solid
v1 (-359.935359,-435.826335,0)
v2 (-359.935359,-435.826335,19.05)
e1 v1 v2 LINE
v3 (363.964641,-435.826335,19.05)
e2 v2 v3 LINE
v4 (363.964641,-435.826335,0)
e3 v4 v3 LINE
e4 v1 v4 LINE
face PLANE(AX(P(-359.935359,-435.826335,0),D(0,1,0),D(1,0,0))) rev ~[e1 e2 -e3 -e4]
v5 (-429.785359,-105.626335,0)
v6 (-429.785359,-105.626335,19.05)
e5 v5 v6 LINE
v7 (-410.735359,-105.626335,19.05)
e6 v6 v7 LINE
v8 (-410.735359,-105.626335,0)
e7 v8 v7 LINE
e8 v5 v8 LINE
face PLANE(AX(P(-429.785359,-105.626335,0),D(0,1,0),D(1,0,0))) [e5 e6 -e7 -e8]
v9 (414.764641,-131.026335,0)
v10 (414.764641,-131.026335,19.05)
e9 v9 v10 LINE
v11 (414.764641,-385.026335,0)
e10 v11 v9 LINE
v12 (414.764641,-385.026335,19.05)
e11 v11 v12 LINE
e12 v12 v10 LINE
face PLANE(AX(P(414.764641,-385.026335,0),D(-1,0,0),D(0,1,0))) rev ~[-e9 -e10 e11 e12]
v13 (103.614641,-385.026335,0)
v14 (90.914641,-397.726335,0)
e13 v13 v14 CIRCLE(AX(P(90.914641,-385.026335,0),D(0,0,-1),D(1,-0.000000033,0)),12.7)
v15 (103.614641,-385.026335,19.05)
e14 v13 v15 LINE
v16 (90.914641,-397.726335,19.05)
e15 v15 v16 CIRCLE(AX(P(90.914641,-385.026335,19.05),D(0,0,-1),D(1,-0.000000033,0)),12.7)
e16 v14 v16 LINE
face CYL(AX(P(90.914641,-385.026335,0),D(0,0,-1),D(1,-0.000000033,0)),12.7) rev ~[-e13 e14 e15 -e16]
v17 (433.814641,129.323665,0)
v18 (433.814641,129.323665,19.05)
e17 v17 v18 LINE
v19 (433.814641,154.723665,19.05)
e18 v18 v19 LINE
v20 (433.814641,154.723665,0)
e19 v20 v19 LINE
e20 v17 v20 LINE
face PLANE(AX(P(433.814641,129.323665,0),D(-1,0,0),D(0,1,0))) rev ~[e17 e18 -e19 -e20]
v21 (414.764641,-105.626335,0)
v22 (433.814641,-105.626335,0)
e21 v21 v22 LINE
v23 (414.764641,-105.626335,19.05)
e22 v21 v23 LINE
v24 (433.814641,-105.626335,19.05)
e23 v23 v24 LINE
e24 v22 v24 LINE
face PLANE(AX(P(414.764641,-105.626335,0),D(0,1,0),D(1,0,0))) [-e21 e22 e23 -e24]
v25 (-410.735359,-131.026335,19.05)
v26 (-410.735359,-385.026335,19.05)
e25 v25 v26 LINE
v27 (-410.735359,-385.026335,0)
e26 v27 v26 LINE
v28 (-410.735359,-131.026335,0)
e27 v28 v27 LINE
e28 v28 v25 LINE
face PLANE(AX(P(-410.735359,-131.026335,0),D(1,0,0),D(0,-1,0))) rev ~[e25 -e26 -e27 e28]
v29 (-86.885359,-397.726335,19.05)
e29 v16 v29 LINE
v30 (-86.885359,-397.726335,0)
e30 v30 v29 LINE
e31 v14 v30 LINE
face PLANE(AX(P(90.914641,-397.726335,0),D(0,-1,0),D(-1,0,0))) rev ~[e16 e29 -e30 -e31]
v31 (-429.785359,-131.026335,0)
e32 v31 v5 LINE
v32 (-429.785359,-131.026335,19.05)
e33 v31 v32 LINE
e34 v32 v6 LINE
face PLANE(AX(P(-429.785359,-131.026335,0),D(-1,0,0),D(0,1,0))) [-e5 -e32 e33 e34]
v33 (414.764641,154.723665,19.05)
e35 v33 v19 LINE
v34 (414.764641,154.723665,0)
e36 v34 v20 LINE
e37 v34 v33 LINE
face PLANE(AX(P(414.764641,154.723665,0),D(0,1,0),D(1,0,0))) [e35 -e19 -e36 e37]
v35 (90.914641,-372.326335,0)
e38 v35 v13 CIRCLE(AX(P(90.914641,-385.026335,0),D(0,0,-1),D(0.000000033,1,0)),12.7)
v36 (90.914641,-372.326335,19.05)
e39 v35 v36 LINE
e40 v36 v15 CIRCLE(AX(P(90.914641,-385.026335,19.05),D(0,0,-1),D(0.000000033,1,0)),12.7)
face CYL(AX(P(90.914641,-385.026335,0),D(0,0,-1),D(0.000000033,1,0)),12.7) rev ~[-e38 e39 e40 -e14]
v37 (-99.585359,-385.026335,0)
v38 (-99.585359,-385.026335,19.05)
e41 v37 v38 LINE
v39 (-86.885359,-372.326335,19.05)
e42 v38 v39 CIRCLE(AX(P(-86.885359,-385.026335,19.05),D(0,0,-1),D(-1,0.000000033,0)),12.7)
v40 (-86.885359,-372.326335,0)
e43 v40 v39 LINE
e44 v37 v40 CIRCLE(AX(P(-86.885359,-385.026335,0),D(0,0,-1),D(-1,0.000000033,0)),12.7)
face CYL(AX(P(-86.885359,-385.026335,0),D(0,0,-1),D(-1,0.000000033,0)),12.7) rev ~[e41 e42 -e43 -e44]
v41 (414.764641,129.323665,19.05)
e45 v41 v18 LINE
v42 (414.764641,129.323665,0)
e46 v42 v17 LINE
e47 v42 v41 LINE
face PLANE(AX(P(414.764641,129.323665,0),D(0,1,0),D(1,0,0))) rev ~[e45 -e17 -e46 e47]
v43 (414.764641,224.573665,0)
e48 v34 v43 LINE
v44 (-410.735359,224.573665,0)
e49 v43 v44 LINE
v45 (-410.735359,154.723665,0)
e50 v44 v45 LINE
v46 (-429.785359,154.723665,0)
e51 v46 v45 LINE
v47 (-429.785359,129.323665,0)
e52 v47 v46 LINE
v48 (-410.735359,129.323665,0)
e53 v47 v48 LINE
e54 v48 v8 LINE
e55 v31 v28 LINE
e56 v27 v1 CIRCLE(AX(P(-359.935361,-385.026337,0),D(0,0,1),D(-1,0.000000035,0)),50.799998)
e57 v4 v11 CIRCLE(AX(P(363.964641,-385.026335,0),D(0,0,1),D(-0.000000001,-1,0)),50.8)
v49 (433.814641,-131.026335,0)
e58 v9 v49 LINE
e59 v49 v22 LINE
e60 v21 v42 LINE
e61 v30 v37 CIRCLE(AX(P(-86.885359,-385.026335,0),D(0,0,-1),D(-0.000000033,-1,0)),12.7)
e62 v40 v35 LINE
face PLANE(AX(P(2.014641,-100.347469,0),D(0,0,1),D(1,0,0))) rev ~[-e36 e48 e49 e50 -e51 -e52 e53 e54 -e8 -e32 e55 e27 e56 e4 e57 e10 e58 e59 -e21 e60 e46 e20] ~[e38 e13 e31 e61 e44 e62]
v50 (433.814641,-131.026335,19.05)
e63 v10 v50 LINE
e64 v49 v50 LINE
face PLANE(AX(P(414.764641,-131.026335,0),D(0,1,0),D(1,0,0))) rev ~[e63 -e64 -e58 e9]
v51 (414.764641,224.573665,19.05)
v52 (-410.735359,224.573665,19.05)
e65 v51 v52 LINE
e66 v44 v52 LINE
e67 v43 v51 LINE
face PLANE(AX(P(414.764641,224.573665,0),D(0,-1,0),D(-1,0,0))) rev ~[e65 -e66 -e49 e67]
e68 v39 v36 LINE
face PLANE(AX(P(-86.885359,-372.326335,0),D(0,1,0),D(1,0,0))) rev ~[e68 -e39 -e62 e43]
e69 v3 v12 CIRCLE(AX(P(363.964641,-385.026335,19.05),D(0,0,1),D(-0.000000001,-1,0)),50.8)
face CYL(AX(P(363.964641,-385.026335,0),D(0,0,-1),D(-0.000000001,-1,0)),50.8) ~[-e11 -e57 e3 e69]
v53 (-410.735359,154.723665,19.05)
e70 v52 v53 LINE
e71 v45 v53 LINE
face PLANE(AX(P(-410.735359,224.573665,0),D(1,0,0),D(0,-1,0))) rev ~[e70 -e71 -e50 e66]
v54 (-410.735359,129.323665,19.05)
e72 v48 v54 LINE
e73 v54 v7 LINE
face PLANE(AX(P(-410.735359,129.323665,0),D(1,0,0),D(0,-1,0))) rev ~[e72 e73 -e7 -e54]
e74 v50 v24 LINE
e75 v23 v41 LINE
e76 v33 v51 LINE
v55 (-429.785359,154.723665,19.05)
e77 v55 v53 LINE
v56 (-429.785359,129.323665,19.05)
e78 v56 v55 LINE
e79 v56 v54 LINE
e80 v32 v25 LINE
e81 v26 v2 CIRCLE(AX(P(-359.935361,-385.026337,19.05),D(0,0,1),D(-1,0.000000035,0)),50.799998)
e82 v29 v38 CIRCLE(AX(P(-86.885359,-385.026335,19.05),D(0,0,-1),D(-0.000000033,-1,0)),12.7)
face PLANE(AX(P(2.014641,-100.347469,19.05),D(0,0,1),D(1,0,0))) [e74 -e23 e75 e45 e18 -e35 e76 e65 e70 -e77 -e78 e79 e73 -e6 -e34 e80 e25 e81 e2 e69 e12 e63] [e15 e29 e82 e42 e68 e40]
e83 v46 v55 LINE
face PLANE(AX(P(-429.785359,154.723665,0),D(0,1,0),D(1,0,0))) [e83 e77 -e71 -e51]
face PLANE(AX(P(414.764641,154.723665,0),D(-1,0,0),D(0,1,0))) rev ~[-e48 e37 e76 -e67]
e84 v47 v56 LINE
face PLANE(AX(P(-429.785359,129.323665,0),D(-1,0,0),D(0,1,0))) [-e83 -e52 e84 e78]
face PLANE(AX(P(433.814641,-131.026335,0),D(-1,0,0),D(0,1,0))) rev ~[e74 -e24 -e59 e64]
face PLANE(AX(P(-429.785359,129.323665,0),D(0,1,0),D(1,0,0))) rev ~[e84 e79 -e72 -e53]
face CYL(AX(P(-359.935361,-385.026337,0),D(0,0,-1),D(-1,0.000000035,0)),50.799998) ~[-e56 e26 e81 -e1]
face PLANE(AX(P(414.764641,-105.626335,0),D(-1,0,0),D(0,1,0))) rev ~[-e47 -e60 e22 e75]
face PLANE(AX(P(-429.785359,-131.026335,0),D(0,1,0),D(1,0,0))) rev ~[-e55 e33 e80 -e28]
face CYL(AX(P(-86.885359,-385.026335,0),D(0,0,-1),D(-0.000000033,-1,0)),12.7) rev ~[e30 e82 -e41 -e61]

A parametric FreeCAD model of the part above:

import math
import FreeCAD as App
import Part
import Sketcher

V = App.Vector
Q = App.Units.Quantity

doc = App.newDocument("Part")
body = doc.addObject("PartDesign::Body", "Body")

sketch1 = body.newObject("Sketcher::SketchObject", "Sketch")
sketch1.AttachmentSupport = (doc.getObject("XY_Plane"), [""])
sketch1.MapMode = "FlatFace"
sketch1.addGeometry(Part.LineSegment(V(414.764641, 224.573665, 0), V(-410.735359, 224.573665, 0)), False)
sketch1.addGeometry(Part.LineSegment(V(-410.735359, 224.573665, 0), V(-410.735359, 154.723665, 0)), False)
sketch1.addGeometry(Part.LineSegment(V(-410.735359, 154.723665, 0), V(-429.785359, 154.723665, 0)), False)
sketch1.addGeometry(Part.LineSegment(V(-429.785359, 154.723665, 0), V(-429.785359, 129.323665, 0)), False)
sketch1.addGeometry(Part.LineSegment(V(-429.785359, 129.323665, 0), V(-410.735359, 129.323665, 0)), False)
sketch1.addGeometry(Part.LineSegment(V(-410.735359, 129.323665, 0), V(-410.735359, -105.626335, 0)), False)
sketch1.addGeometry(Part.LineSegment(V(-410.735359, -105.626335, 0), V(-429.785359, -105.626335, 0)), False)
sketch1.addGeometry(Part.LineSegment(V(-429.785359, -105.626335, 0), V(-429.785359, -131.026335, 0)), False)
sketch1.addGeometry(Part.LineSegment(V(-429.785359, -131.026335, 0), V(-410.735359, -131.026335, 0)), False)
sketch1.addGeometry(Part.LineSegment(V(-410.735359, -131.026335, 0), V(-410.735359, -385.026335, 0)), False)
sketch1.addGeometry(Part.ArcOfCircle(Part.Circle(V(-359.935361, -385.026337, 0), V(0, 0, 1), 50.799998), math.radians(179.999998), math.radians(270.000002)), False)
sketch1.addGeometry(Part.LineSegment(V(-359.935359, -435.826335, 0), V(363.964641, -435.826335, 0)), False)
sketch1.addGeometry(Part.ArcOfCircle(Part.Circle(V(363.964641, -385.026335, 0), V(0, 0, 1), 50.8), math.radians(-90), math.radians(0)), False)
sketch1.addGeometry(Part.LineSegment(V(414.764641, -385.026335, 0), V(414.764641, -131.026335, 0)), False)
sketch1.addGeometry(Part.LineSegment(V(414.764641, -131.026335, 0), V(433.814641, -131.026335, 0)), False)
sketch1.addGeometry(Part.LineSegment(V(433.814641, -131.026335, 0), V(433.814641, -105.626335, 0)), False)
sketch1.addGeometry(Part.LineSegment(V(433.814641, -105.626335, 0), V(414.764641, -105.626335, 0)), False)
sketch1.addGeometry(Part.LineSegment(V(414.764641, -105.626335, 0), V(414.764641, 129.323665, 0)), False)
sketch1.addGeometry(Part.LineSegment(V(414.764641, 129.323665, 0), V(433.814641, 129.323665, 0)), False)
sketch1.addGeometry(Part.LineSegment(V(433.814641, 129.323665, 0), V(433.814641, 154.723665, 0)), False)
sketch1.addGeometry(Part.LineSegment(V(433.814641, 154.723665, 0), V(414.764641, 154.723665, 0)), False)
sketch1.addGeometry(Part.LineSegment(V(414.764641, 154.723665, 0), V(414.764641, 224.573665, 0)), False)
sketch1.addGeometry(Part.ArcOfCircle(Part.Circle(V(90.914641, -385.026335, 0), V(0, 0, 1), 12.7), math.radians(-89.999998), math.radians(-0.000002)), False)
sketch1.addGeometry(Part.LineSegment(V(90.914641, -397.726335, 0), V(-86.885359, -397.726335, 0)), False)
sketch1.addGeometry(Part.ArcOfCircle(Part.Circle(V(-86.885359, -385.026335, 0), V(0, 0, 1), 12.7), math.radians(-179.999998), math.radians(-90.000002)), False)
sketch1.addGeometry(Part.ArcOfCircle(Part.Circle(V(-86.885359, -385.026335, 0), V(0, 0, 1), 12.7), math.radians(90.000002), math.radians(179.999998)), False)
sketch1.addGeometry(Part.LineSegment(V(-86.885359, -372.326335, 0), V(90.914641, -372.326335, 0)), False)
sketch1.addGeometry(Part.ArcOfCircle(Part.Circle(V(90.914641, -385.026335, 0), V(0, 0, 1), 12.7), math.radians(0.000002), math.radians(89.999998)), False)
sketch1.addConstraint(Sketcher.Constraint("Coincident", 0, 2, 1, 1))
sketch1.addConstraint(Sketcher.Constraint("Coincident", 1, 2, 2, 1))
sketch1.addConstraint(Sketcher.Constraint("Coincident", 2, 2, 3, 1))
sketch1.addConstraint(Sketcher.Constraint("Coincident", 3, 2, 4, 1))
sketch1.addConstraint(Sketcher.Constraint("Coincident", 4, 2, 5, 1))
sketch1.addConstraint(Sketcher.Constraint("Coincident", 5, 2, 6, 1))
sketch1.addConstraint(Sketcher.Constraint("Coincident", 6, 2, 7, 1))
sketch1.addConstraint(Sketcher.Constraint("Coincident", 7, 2, 8, 1))
sketch1.addConstraint(Sketcher.Constraint("Coincident", 8, 2, 9, 1))
sketch1.addConstraint(Sketcher.Constraint("Tangent", 9, 2, 10, 1))
sketch1.addConstraint(Sketcher.Constraint("Tangent", 10, 2, 11, 1))
sketch1.addConstraint(Sketcher.Constraint("Tangent", 11, 2, 12, 1))
sketch1.addConstraint(Sketcher.Constraint("Tangent", 12, 2, 13, 1))
sketch1.addConstraint(Sketcher.Constraint("Coincident", 13, 2, 14, 1))
sketch1.addConstraint(Sketcher.Constraint("Coincident", 14, 2, 15, 1))
sketch1.addConstraint(Sketcher.Constraint("Coincident", 15, 2, 16, 1))
sketch1.addConstraint(Sketcher.Constraint("Coincident", 16, 2, 17, 1))
sketch1.addConstraint(Sketcher.Constraint("Coincident", 17, 2, 18, 1))
sketch1.addConstraint(Sketcher.Constraint("Coincident", 18, 2, 19, 1))
sketch1.addConstraint(Sketcher.Constraint("Coincident", 19, 2, 20, 1))
sketch1.addConstraint(Sketcher.Constraint("Coincident", 20, 2, 21, 1))
sketch1.addConstraint(Sketcher.Constraint("Coincident", 21, 2, 0, 1))
sketch1.addConstraint(Sketcher.Constraint("Tangent", 22, 1, 23, 1))
sketch1.addConstraint(Sketcher.Constraint("Tangent", 23, 2, 24, 2))
sketch1.addConstraint(Sketcher.Constraint("Tangent", 24, 1, 25, 2))
sketch1.addConstraint(Sketcher.Constraint("Tangent", 25, 1, 26, 1))
sketch1.addConstraint(Sketcher.Constraint("Tangent", 26, 2, 27, 2))
sketch1.addConstraint(Sketcher.Constraint("Tangent", 27, 1, 22, 2))
sketch1.addConstraint(Sketcher.Constraint("Horizontal", 0))
sketch1.addConstraint(Sketcher.Constraint("Vertical", 1))
sketch1.addConstraint(Sketcher.Constraint("Horizontal", 2))
sketch1.addConstraint(Sketcher.Constraint("Vertical", 3))
sketch1.addConstraint(Sketcher.Constraint("Horizontal", 4))
sketch1.addConstraint(Sketcher.Constraint("Vertical", 5))
sketch1.addConstraint(Sketcher.Constraint("Horizontal", 6))
sketch1.addConstraint(Sketcher.Constraint("Vertical", 7))
sketch1.addConstraint(Sketcher.Constraint("Horizontal", 8))
sketch1.addConstraint(Sketcher.Constraint("Vertical", 9))
sketch1.addConstraint(Sketcher.Constraint("Horizontal", 11))
sketch1.addConstraint(Sketcher.Constraint("Vertical", 13))
sketch1.addConstraint(Sketcher.Constraint("Horizontal", 14))
sketch1.addConstraint(Sketcher.Constraint("Vertical", 15))
sketch1.addConstraint(Sketcher.Constraint("Horizontal", 16))
sketch1.addConstraint(Sketcher.Constraint("Vertical", 17))
sketch1.addConstraint(Sketcher.Constraint("Horizontal", 18))
sketch1.addConstraint(Sketcher.Constraint("Vertical", 19))
sketch1.addConstraint(Sketcher.Constraint("Horizontal", 20))
sketch1.addConstraint(Sketcher.Constraint("Vertical", 21))
sketch1.addConstraint(Sketcher.Constraint("Horizontal", 23))
sketch1.addConstraint(Sketcher.Constraint("Horizontal", 26))
sketch1.addConstraint(Sketcher.Constraint("Equal", 10, 12))
sketch1.addConstraint(Sketcher.Constraint("Equal", 22, 24))
sketch1.addConstraint(Sketcher.Constraint("Equal", 24, 25))
sketch1.addConstraint(Sketcher.Constraint("Horizontal", 12, 3, 22, 3))
sketch1.addConstraint(Sketcher.Constraint("Horizontal", 8, 2, 13, 2))
sketch1.addConstraint(Sketcher.Constraint("Horizontal", 6, 2, 15, 2))
sketch1.addConstraint(Sketcher.Constraint("Horizontal", 4, 2, 17, 2))
sketch1.addConstraint(Sketcher.Constraint("Horizontal", 2, 2, 19, 2))
sketch1.addConstraint(Sketcher.Constraint("Horizontal", 12, 2, 24, 1))
sketch1.addConstraint(Sketcher.Constraint("Horizontal", 24, 1, 27, 1))
sketch1.addConstraint(Sketcher.Constraint("Vertical", 1, 2, 4, 2))
sketch1.addConstraint(Sketcher.Constraint("Vertical", 3, 2, 6, 2))
sketch1.addConstraint(Sketcher.Constraint("Vertical", 5, 2, 8, 2))
sketch1.addConstraint(Sketcher.Constraint("Vertical", 13, 2, 16, 2))
sketch1.addConstraint(Sketcher.Constraint("Vertical", 15, 2, 18, 2))
sketch1.addConstraint(Sketcher.Constraint("Vertical", 17, 2, 20, 2))
sketch1.addConstraint(Sketcher.Constraint("Equal", 8, 14))
sketch1.addConstraint(Sketcher.Constraint("Equal", 3, 7))
sketch1.addConstraint(Sketcher.Constraint("Radius", 10, Q("1.9999999 in")))
sketch1.addConstraint(Sketcher.Constraint("Radius", 22, Q("0.5 in")))
sketch1.addConstraint(Sketcher.Constraint("DistanceX", 23, 2, 23, 1, Q("7 in")))
sketch1.addConstraint(Sketcher.Constraint("DistanceY", 3, 2, 3, 1, Q("1 in")))
sketch1.addConstraint(Sketcher.Constraint("DistanceY", 9, 2, 9, 1, Q("10 in")))
sketch1.addConstraint(Sketcher.Constraint("DistanceX", 0, 2, 0, 1, Q("32.5 in")))
sketch1.addConstraint(Sketcher.Constraint("DistanceY", 10, 3, 0, 2, Q("24.0000001 in")))
sketch1.addConstraint(Sketcher.Constraint("DistanceX", 2, 2, 2, 1, Q("0.75 in")))
sketch1.addConstraint(Sketcher.Constraint("DistanceY", 1, 2, 1, 1, Q("2.75 in")))
sketch1.addConstraint(Sketcher.Constraint("DistanceX", 2, 2, 24, 3, Q("13.5 in")))
sketch1.addConstraint(Sketcher.Constraint("DistanceX", 10, 3, -1, 1, Q("359.935361 mm")))
sketch1.addConstraint(Sketcher.Constraint("DistanceY", 10, 3, -1, 1, Q("385.026337 mm")))
pad1 = body.newObject("PartDesign::Pad", "Pad")
pad1.Profile = sketch1
pad1.Length = Q("0.75 in")

doc.recompute()
